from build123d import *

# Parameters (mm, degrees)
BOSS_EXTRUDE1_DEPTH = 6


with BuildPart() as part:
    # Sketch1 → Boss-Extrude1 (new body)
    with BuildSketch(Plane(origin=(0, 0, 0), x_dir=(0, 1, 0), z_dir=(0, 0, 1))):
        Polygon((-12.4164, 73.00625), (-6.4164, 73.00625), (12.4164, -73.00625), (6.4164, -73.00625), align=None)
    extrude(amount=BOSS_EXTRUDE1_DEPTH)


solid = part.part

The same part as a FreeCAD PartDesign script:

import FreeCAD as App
import Part
import Sketcher
from FreeCAD import Vector

doc = App.newDocument("Part")
params = doc.addObject("Spreadsheet::Sheet", "Params")
for row, (alias, value) in enumerate([
    ("sketch1_height", "6 mm"),
    ("pad1_length", "6 mm"),
], start=1):
    params.set(f"A{row}", alias)
    params.set(f"B{row}", "=" + value)
    params.setAlias(f"B{row}", alias)

body = doc.addObject("PartDesign::Body", "Body")

sketch1 = doc.addObject("Sketcher::SketchObject", "Sketch")
body.addObject(sketch1)
sketch1.AttachmentSupport = (doc.XY_Plane, [""])
sketch1.MapMode = "FlatFace"
sketch1.addGeometry(Part.LineSegment(Vector(-73, -6, 0), Vector(-73, -12, 0)), False)
sketch1.addGeometry(Part.LineSegment(Vector(-73, -12, 0), Vector(73, 6, 0)), False)
sketch1.addGeometry(Part.LineSegment(Vector(73, 6, 0), Vector(73, 12, 0)), False)
sketch1.addGeometry(Part.LineSegment(Vector(73, 12, 0), Vector(-73, -6, 0)), False)
sketch1.addConstraint(Sketcher.Constraint("Coincident", 0, 2, 1, 1))
sketch1.addConstraint(Sketcher.Constraint("Coincident", 1, 2, 2, 1))
sketch1.addConstraint(Sketcher.Constraint("Coincident", 2, 2, 3, 1))
sketch1.addConstraint(Sketcher.Constraint("Coincident", 3, 2, 0, 1))
sketch1.addConstraint(Sketcher.Constraint("Vertical", 0))
sketch1.addConstraint(Sketcher.Constraint("Vertical", 2))
sketch1.addConstraint(Sketcher.Constraint("Symmetric", 0, 2, 2, 2, -1, 1))
sketch1.addConstraint(Sketcher.Constraint("Parallel", 1, 3))
sketch1.addConstraint(Sketcher.Constraint("DistanceY", 0, 2, 0, 1, 6.0))
sketch1.addConstraint(Sketcher.Constraint("DistanceY", 0, 2, -1, 1, 12.4164))
sketch1.addConstraint(Sketcher.Constraint("DistanceX", 0, 2, 1, 2, 146.0125))
sketch1.setExpression("Constraints[8]", "Params.sketch1_height")
pad1 = doc.addObject("PartDesign::Pad", "Pad")
body.addObject(pad1)
pad1.Profile = sketch1
pad1.setExpression("Length", "Params.pad1_length")

doc.recompute()
